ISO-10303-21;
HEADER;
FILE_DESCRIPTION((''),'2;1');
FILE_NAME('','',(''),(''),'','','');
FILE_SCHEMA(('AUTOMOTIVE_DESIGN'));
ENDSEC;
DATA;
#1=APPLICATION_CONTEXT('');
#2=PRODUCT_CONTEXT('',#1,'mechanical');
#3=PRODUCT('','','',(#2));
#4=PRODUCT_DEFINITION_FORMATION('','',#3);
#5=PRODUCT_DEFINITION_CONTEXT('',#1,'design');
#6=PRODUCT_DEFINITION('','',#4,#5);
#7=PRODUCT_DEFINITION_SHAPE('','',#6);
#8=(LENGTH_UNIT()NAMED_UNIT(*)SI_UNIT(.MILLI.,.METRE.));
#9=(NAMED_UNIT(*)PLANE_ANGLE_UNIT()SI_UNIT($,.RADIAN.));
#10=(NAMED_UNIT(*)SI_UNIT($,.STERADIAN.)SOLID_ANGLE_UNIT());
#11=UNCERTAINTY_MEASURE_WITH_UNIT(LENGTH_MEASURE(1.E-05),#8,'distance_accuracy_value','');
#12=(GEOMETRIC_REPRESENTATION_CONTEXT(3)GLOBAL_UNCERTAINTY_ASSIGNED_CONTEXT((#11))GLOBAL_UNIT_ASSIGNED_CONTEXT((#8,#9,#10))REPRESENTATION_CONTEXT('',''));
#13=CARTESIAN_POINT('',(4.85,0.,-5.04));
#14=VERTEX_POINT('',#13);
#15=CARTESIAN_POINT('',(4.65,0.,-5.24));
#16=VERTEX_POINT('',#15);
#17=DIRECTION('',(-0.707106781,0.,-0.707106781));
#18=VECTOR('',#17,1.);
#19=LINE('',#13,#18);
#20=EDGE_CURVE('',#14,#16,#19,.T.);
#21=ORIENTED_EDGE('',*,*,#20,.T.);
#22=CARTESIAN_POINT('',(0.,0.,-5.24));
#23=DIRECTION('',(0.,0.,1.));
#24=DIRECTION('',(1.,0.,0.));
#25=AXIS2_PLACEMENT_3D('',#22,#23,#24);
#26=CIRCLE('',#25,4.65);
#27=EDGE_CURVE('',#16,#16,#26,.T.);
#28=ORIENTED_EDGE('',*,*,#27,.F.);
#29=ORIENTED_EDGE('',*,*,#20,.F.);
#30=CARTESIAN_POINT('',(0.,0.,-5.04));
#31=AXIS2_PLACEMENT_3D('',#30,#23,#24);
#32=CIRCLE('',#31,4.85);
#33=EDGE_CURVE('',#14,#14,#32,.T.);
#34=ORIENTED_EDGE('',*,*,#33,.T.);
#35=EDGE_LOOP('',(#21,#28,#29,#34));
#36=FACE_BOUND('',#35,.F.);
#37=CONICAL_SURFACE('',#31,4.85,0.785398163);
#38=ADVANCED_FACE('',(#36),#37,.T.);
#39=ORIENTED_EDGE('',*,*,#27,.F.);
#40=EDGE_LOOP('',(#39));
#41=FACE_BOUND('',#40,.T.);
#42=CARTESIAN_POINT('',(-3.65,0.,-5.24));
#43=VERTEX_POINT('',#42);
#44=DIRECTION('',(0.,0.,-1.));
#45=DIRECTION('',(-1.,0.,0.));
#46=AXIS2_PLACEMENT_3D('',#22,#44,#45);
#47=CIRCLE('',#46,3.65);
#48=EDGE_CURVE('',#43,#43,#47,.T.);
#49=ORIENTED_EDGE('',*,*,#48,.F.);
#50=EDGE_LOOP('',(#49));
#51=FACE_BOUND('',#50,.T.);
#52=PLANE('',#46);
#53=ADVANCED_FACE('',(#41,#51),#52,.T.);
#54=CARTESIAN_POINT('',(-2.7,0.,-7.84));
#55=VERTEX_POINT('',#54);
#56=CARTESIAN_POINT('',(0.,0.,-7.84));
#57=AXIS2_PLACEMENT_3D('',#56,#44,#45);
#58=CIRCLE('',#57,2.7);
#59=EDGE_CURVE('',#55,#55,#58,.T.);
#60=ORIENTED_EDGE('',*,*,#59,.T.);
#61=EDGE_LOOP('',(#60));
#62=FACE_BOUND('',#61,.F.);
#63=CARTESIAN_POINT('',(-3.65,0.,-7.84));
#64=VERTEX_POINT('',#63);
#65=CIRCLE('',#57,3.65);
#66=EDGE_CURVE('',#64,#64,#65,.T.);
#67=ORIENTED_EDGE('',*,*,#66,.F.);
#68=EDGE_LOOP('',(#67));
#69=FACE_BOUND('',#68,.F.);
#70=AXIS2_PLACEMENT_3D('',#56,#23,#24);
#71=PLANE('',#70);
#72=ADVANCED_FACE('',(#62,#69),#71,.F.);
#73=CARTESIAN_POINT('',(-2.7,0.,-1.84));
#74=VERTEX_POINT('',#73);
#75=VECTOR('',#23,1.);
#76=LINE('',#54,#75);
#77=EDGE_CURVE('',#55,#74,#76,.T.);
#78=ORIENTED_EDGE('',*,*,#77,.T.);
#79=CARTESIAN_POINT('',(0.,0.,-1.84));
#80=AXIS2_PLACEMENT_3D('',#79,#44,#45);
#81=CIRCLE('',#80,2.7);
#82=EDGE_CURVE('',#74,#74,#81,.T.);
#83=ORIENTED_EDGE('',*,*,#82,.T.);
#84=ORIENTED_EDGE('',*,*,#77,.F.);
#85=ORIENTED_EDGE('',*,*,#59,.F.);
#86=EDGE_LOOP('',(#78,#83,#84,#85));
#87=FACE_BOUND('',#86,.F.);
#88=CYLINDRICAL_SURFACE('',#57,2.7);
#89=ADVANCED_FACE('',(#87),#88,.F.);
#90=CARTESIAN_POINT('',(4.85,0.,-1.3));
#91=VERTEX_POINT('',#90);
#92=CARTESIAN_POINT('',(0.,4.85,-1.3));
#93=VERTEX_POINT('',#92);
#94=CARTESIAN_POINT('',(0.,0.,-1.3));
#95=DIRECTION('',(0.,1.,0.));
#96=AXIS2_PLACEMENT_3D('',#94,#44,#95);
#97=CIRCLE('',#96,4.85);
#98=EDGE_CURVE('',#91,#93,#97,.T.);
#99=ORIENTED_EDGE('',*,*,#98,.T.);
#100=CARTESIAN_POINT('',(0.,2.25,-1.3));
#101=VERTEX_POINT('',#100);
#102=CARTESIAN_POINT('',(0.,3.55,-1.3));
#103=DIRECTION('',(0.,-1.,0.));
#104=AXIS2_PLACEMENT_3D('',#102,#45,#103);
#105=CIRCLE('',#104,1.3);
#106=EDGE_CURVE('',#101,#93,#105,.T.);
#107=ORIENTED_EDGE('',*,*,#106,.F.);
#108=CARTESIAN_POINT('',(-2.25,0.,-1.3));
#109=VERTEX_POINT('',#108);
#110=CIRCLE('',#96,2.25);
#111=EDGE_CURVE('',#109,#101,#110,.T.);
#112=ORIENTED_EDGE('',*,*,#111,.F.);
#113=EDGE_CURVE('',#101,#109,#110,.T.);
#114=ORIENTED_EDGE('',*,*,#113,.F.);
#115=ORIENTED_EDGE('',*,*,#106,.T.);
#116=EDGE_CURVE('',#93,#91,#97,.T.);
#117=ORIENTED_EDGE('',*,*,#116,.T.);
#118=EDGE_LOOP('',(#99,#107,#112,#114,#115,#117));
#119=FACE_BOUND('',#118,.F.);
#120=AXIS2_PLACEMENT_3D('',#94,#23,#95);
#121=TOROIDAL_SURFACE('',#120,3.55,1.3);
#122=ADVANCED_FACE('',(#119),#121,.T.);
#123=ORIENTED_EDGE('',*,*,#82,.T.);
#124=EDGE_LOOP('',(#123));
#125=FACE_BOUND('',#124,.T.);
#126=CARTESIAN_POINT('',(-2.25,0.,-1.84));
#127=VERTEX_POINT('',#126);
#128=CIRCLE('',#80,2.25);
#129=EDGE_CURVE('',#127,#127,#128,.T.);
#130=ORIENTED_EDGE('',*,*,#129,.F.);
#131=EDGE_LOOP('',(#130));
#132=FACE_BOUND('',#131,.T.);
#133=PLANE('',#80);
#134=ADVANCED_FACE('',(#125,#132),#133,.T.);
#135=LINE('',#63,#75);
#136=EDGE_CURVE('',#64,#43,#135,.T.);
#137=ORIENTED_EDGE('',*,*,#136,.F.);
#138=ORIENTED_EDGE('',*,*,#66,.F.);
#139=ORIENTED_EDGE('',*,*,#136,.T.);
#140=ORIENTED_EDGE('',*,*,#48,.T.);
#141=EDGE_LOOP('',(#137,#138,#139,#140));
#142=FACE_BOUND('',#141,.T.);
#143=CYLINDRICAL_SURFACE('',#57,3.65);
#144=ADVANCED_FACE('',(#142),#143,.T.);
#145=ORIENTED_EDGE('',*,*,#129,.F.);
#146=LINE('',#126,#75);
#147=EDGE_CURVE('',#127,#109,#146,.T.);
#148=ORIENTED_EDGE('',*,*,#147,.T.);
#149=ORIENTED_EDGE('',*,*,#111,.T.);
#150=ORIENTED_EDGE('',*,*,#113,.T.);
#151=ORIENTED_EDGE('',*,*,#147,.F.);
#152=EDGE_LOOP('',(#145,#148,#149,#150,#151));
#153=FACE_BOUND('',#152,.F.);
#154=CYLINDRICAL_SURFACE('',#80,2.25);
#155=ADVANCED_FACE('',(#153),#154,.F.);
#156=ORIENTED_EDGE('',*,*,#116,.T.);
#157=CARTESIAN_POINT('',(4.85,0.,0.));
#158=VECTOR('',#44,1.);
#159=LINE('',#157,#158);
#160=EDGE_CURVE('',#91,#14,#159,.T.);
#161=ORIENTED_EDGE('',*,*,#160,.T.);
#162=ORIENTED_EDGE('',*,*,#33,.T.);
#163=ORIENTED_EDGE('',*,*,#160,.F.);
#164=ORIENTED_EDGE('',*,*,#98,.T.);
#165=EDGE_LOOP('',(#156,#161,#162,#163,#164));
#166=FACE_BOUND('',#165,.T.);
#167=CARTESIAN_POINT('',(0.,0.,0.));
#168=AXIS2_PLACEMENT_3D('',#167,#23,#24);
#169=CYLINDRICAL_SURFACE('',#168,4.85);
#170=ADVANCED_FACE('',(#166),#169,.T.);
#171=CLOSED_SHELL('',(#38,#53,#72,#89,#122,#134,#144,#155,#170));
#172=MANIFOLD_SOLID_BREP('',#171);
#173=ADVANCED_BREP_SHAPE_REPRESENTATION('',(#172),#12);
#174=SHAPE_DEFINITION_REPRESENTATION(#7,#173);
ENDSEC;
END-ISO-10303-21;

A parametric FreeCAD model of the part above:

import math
import FreeCAD as App
import Part
import Sketcher

V = App.Vector


def edges_at(feature, points):
    """Names of the edges that pass closest to the given points."""
    edges = feature.Shape.Edges
    near = lambda p: min(range(len(edges)), key=lambda i: edges[i].distToShape(Part.Vertex(*p))[0])
    return sorted({f"Edge{near(p) + 1}" for p in points})

doc = App.newDocument("Part")
body = doc.addObject("PartDesign::Body", "Body")

# Sketch on XY plane
sketch1 = body.newObject("Sketcher::SketchObject", "Sketch")
sketch1.AttachmentSupport = (doc.getObject("XY_Plane"), [""])
sketch1.MapMode = "FlatFace"
sketch1.addGeometry(Part.Circle(V(0, 0, 0), V(0, 0, 1), 4.8), False)
sketch1.addConstraint([
    Sketcher.Constraint("Coincident", 0, 3, -1, 1),
    Sketcher.Constraint("Diameter", 0, 9.7),
])
pad1 = body.newObject("PartDesign::Pad", "Pad")
pad1.Profile = sketch1
pad1.Length = 7.84
pad1.Reversed = True

# Sketch on XY plane
sketch2 = body.newObject("Sketcher::SketchObject", "Sketch001")
sketch2.AttachmentSupport = (doc.getObject("XY_Plane"), [""])
sketch2.MapMode = "FlatFace"
sketch2.AttachmentOffset = App.Placement(V(0, 0, -7.84), App.Rotation())
sketch2.addGeometry([
    Part.Circle(V(0, 0, 0), V(0, 0, 1), 4.8),
    Part.Circle(V(0, 0, 0), V(0, 0, 1), 3.6),
], False)
sketch2.addConstraint([
    Sketcher.Constraint("Coincident", 0, 3, -1, 1),
    Sketcher.Constraint("Coincident", 1, 3, -1, 1),
    Sketcher.Constraint("Diameter", 1, 7.3),
    Sketcher.Constraint("Diameter", 0, 9.7),
])
pocket1 = body.newObject("PartDesign::Pocket", "Pocket")
pocket1.Profile = sketch2
pocket1.Length = 2.6
pocket1.Reversed = True

# Sketch on XY plane
sketch3 = body.newObject("Sketcher::SketchObject", "Sketch002")
sketch3.AttachmentSupport = (doc.getObject("XY_Plane"), [""])
sketch3.MapMode = "FlatFace"
sketch3.AttachmentOffset = App.Placement(V(0, 0, -7.84), App.Rotation())
sketch3.addGeometry(Part.Circle(V(0, 0, 0), V(0, 0, 1), 2.7), False)
sketch3.addConstraint([
    Sketcher.Constraint("Coincident", 0, 3, -1, 1),
    Sketcher.Constraint("Diameter", 0, 5.4),
])
pocket2 = body.newObject("PartDesign::Pocket", "Pocket001")
pocket2.Profile = sketch3
pocket2.Length = 6
pocket2.Reversed = True

# Sketch on XY plane
sketch4 = body.newObject("Sketcher::SketchObject", "Sketch003")
sketch4.AttachmentSupport = (doc.getObject("XY_Plane"), [""])
sketch4.MapMode = "FlatFace"
sketch4.AttachmentOffset = App.Placement(V(0, 0, -1.84), App.Rotation())
sketch4.addGeometry(Part.Circle(V(0, 0, 0), V(0, 0, 1), 2.2), False)
sketch4.addConstraint([
    Sketcher.Constraint("Coincident", 0, 3, -1, 1),
    Sketcher.Constraint("Diameter", 0, 4.5),
])
pocket3 = body.newObject("PartDesign::Pocket", "Pocket002")
pocket3.Profile = sketch4
pocket3.Type = "ThroughAll"
pocket3.Reversed = True

# Sketch on YZ plane
sketch5 = body.newObject("Sketcher::SketchObject", "Sketch004")
sketch5.AttachmentSupport = (doc.getObject("YZ_Plane"), [""])
sketch5.MapMode = "FlatFace"
sketch5.addGeometry([
    Part.LineSegment(V(4.8, -1.3, 0), V(4.8, 1, 0)),
    Part.LineSegment(V(4.8, 1, 0), V(2.2, 1, 0)),
    Part.LineSegment(V(2.2, 1, 0), V(2.2, -1.3, 0)),
    Part.ArcOfCircle(Part.Circle(V(3.5, -1.3, 0), V(0, 0, 1), 1.3), math.radians(0), math.radians(180)),
], False)
sketch5.addConstraint([
    Sketcher.Constraint("Coincident", 0, 2, 1, 1),
    Sketcher.Constraint("Coincident", 1, 2, 2, 1),
    Sketcher.Constraint("Tangent", 2, 2, 3, 2),
    Sketcher.Constraint("Tangent", 3, 1, 0, 1),
    Sketcher.Constraint("Vertical", 0),
    Sketcher.Constraint("Horizontal", 1),
    Sketcher.Constraint("Vertical", 2),
    Sketcher.Constraint("Radius", 3, 1.3),
    Sketcher.Constraint("DistanceY", -1, 1, 0, 2, 1.0),
    Sketcher.Constraint("DistanceY", 3, 3, -1, 1, 1.3),
    Sketcher.Constraint("DistanceX", -1, 1, 0, 2, 4.85),
])
groove = body.newObject("PartDesign::Groove", "Groove")
groove.Profile = sketch5
groove.ReferenceAxis = (sketch5, ["V_Axis"])
groove.Angle = 360
doc.recompute()

chamfer = body.newObject("PartDesign::Chamfer", "Chamfer")
chamfer.Base = (groove, edges_at(groove, [(-4.85, 0, -5.24)]))
chamfer.Size = 0.2

doc.recompute()
